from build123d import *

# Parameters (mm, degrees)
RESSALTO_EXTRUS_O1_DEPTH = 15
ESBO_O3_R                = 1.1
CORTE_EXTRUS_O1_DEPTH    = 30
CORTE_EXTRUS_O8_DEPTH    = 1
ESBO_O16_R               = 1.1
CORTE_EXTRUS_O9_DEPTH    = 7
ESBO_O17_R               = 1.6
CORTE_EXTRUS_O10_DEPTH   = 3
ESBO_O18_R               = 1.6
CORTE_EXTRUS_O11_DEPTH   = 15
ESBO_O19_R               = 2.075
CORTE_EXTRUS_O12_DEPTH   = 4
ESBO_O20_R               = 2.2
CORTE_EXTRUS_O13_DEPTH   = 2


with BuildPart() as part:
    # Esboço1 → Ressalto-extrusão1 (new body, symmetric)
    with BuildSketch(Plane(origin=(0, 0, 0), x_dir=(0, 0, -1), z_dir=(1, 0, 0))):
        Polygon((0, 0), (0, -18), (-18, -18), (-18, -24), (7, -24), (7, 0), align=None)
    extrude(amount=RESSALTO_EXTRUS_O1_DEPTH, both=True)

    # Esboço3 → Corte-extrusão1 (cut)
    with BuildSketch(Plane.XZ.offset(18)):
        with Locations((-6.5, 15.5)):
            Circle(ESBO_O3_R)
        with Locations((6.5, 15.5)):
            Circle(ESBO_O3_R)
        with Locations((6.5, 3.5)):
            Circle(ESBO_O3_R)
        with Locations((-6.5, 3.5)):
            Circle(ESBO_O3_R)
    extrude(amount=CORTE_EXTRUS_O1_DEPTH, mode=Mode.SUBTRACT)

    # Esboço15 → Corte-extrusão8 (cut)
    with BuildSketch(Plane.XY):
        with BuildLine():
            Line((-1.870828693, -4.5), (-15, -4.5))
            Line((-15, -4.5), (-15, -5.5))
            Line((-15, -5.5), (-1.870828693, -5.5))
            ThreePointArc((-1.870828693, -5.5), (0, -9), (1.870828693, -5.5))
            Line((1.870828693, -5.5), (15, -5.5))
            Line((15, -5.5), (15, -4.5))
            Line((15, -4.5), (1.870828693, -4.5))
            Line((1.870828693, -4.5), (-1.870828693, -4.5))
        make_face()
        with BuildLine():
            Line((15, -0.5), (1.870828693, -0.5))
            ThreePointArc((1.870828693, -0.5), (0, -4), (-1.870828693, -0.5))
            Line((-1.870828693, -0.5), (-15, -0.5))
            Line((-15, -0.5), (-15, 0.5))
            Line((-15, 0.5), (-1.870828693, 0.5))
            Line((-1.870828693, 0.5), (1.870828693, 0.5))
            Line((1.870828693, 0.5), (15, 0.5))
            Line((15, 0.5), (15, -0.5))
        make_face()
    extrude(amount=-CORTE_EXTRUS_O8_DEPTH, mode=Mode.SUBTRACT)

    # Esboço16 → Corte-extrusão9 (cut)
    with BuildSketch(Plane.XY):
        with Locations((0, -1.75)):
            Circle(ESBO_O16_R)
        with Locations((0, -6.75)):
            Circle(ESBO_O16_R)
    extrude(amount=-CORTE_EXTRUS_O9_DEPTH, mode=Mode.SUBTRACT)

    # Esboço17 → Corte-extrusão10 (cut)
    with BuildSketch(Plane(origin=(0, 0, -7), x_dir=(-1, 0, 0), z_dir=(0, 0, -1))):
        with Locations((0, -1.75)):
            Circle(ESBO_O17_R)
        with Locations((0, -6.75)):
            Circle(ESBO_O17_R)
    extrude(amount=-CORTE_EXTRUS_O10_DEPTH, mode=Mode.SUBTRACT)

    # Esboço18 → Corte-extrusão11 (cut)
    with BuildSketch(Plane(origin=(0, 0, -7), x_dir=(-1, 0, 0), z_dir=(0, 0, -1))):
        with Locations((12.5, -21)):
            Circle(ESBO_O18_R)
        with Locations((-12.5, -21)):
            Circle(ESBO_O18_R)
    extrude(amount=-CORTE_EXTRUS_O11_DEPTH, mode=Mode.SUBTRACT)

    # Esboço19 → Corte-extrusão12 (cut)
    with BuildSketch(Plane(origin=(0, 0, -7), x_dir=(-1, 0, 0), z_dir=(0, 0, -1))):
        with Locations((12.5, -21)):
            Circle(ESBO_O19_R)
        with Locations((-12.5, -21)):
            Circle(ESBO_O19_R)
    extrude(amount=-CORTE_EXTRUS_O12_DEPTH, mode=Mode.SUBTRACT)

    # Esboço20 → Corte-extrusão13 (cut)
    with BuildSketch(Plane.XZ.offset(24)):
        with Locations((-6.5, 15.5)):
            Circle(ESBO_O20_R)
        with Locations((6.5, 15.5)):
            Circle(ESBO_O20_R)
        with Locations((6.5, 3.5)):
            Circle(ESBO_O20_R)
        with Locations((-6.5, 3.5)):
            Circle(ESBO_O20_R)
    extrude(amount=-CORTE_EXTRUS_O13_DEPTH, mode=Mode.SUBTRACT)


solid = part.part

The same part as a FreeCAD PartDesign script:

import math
import FreeCAD as App
import Part
import Sketcher
Q = App.Units.Quantity


def add_polygon(sketch, points):
    """Adds a closed chain of lines whose ends are joined by coincident constraints."""
    first, n = sketch.GeometryCount, len(points)
    for a, b in zip(points, points[1:] + points[:1]):
        sketch.addGeometry(Part.LineSegment(App.Vector(*a, 0), App.Vector(*b, 0)), False)
    for i in range(n):
        sketch.addConstraint(Sketcher.Constraint("Coincident", first + i, 2, first + (i + 1) % n, 1))

doc = App.newDocument("Part")
body = doc.addObject("PartDesign::Body", "Body")

# Sketch on YZ plane
sketch1 = doc.addObject("Sketcher::SketchObject", "Sketch")
body.addObject(sketch1)
sketch1.AttachmentSupport = (doc.YZ_Plane, [""])
sketch1.MapMode = "FlatFace"
add_polygon(sketch1, [(0, 0), (-18, 0), (-18, 18), (-24, 18), (-24, -7), (0, -7)])  # lines 0-5
sketch1.addConstraint([
    Sketcher.Constraint("Horizontal", 0),
    Sketcher.Constraint("Vertical", 1),
    Sketcher.Constraint("Horizontal", 2),
    Sketcher.Constraint("Vertical", 3),
    Sketcher.Constraint("Horizontal", 4),
    Sketcher.Constraint("Vertical", 5),
    Sketcher.Constraint("Coincident", 5, 2, -1, 1),
    Sketcher.Constraint("Equal", 0, 1),
    Sketcher.Constraint("DistanceX", 0, 2, 0, 1, Q("18 mm")),
    Sketcher.Constraint("DistanceX", 2, 2, 2, 1, Q("6 mm")),
    Sketcher.Constraint("DistanceY", 3, 2, 3, 1, Q("25 mm")),
])
pad1 = doc.addObject("PartDesign::Pad", "Pad")
body.addObject(pad1)
pad1.Profile = sketch1
pad1.Length = 30
pad1.Midplane = True

# Sketch on XZ plane
sketch2 = doc.addObject("Sketcher::SketchObject", "Sketch001")
body.addObject(sketch2)
sketch2.AttachmentSupport = (doc.XZ_Plane, [""])
sketch2.MapMode = "FlatFace"
sketch2.AttachmentOffset = App.Placement(App.Vector(0, 0, 18), App.Rotation())
sketch2.addGeometry([
    Part.Circle(App.Vector(-6.5, 15.5, 0), App.Vector(0, 0, 1), 1.1),
    Part.Circle(App.Vector(6.5, 15.5, 0), App.Vector(0, 0, 1), 1.1),
    Part.Circle(App.Vector(6.5, 3.5, 0), App.Vector(0, 0, 1), 1.1),
    Part.Circle(App.Vector(-6.5, 3.5, 0), App.Vector(0, 0, 1), 1.1),
], False)
sketch2.addConstraint([
    Sketcher.Constraint("Equal", 0, 1),
    Sketcher.Constraint("Equal", 1, 2),
    Sketcher.Constraint("Equal", 2, 3),
    Sketcher.Constraint("Symmetric", 0, 3, 1, 3, -2),
    Sketcher.Constraint("Symmetric", 2, 3, 3, 3, -2),
    Sketcher.Constraint("Vertical", 1, 3, 2, 3),
    Sketcher.Constraint("Diameter", 0, Q("2.2 mm")),
    Sketcher.Constraint("DistanceX", 0, 3, 1, 3, Q("13 mm")),
    Sketcher.Constraint("DistanceY", 2, 3, 1, 3, Q("12 mm")),
    Sketcher.Constraint("DistanceY", -1, 1, 0, 3, Q("15.5 mm")),
])
pocket1 = doc.addObject("PartDesign::Pocket", "Pocket")
body.addObject(pocket1)
pocket1.Profile = sketch2
pocket1.Length = 30
pocket1.Reversed = True

# Sketch on XY plane
sketch3 = doc.addObject("Sketcher::SketchObject", "Sketch002")
body.addObject(sketch3)
sketch3.AttachmentSupport = (doc.XY_Plane, [""])
sketch3.MapMode = "FlatFace"
sketch3.addGeometry([
    Part.LineSegment(App.Vector(-15, -4.5, 0), App.Vector(-15, -5.5, 0)),  # 0
    Part.LineSegment(App.Vector(-15, -5.5, 0), App.Vector(-1.9, -5.5, 0)),  # 1
    Part.ArcOfCircle(Part.Circle(App.Vector(0, -6.8, 0), App.Vector(0, 0, 1), 2.2), math.radians(146), math.radians(394)),  # 2
    Part.LineSegment(App.Vector(1.9, -5.5, 0), App.Vector(15, -5.5, 0)),  # 3
    Part.LineSegment(App.Vector(15, -5.5, 0), App.Vector(15, -4.5, 0)),  # 4
    Part.LineSegment(App.Vector(15, -4.5, 0), App.Vector(-15, -4.5, 0)),  # 5
    Part.LineSegment(App.Vector(1.9, -0.5, 0), App.Vector(15, -0.5, 0)),  # 6
    Part.LineSegment(App.Vector(15, -0.5, 0), App.Vector(15, 0.5, 0)),  # 7
    Part.LineSegment(App.Vector(15, 0.5, 0), App.Vector(-15, 0.5, 0)),  # 8
    Part.LineSegment(App.Vector(-15, 0.5, 0), App.Vector(-15, -0.5, 0)),  # 9
    Part.LineSegment(App.Vector(-15, -0.5, 0), App.Vector(-1.9, -0.5, 0)),  # 10
    Part.ArcOfCircle(Part.Circle(App.Vector(0, -1.8, 0), App.Vector(0, 0, 1), 2.2), math.radians(146), math.radians(394)),  # 11
], False)
sketch3.addConstraint([
    Sketcher.Constraint("Coincident", 0, 2, 1, 1),
    Sketcher.Constraint("Coincident", 1, 2, 2, 1),
    Sketcher.Constraint("Coincident", 2, 2, 3, 1),
    Sketcher.Constraint("Coincident", 3, 2, 4, 1),
    Sketcher.Constraint("Coincident", 4, 2, 5, 1),
    Sketcher.Constraint("Coincident", 5, 2, 0, 1),
    Sketcher.Constraint("Coincident", 6, 2, 7, 1),
    Sketcher.Constraint("Coincident", 7, 2, 8, 1),
    Sketcher.Constraint("Coincident", 8, 2, 9, 1),
    Sketcher.Constraint("Coincident", 9, 2, 10, 1),
    Sketcher.Constraint("Coincident", 10, 2, 11, 1),
    Sketcher.Constraint("Coincident", 11, 2, 6, 1),
    Sketcher.Constraint("Vertical", 0),
    Sketcher.Constraint("Horizontal", 1),
    Sketcher.Constraint("Horizontal", 3),
    Sketcher.Constraint("Vertical", 4),
    Sketcher.Constraint("Horizontal", 5),
    Sketcher.Constraint("Horizontal", 6),
    Sketcher.Constraint("Vertical", 7),
    Sketcher.Constraint("Horizontal", 8),
    Sketcher.Constraint("Vertical", 9),
    Sketcher.Constraint("Horizontal", 10),
    Sketcher.Constraint("Equal", 2, 11),
    Sketcher.Constraint("Symmetric", 6, 2, 8, 2, -1, 1),
    Sketcher.Constraint("Symmetric", 1, 2, 2, 2, -2),
    Sketcher.Constraint("Symmetric", 10, 2, 11, 2, -2),
    Sketcher.Constraint("Vertical", 4, 2, 6, 2),
    Sketcher.Constraint("Vertical", 5, 2, 8, 2),
    Sketcher.Constraint("Vertical", 1, 2, 10, 2),
    Sketcher.Constraint("Equal", 4, 7),
    Sketcher.Constraint("DistanceX", 5, 2, 5, 1, Q("30 mm")),
    Sketcher.Constraint("DistanceY", 0, 2, 0, 1, Q("1 mm")),
    Sketcher.Constraint("Radius", 2, Q("2.25 mm")),
    Sketcher.Constraint("DistanceY", 2, 3, 11, 3, Q("5 mm")),
    Sketcher.Constraint("DistanceY", 2, 3, -1, 1, Q("6.75 mm")),
])
pocket2 = doc.addObject("PartDesign::Pocket", "Pocket001")
body.addObject(pocket2)
pocket2.Profile = sketch3
pocket2.Length = 1

# Sketch on XY plane
sketch4 = doc.addObject("Sketcher::SketchObject", "Sketch003")
body.addObject(sketch4)
sketch4.AttachmentSupport = (doc.XY_Plane, [""])
sketch4.MapMode = "FlatFace"
sketch4.addGeometry([
    Part.Circle(App.Vector(0, -1.8, 0), App.Vector(0, 0, 1), 1.1),
    Part.Circle(App.Vector(0, -6.8, 0), App.Vector(0, 0, 1), 1.1),
], False)
sketch4.addConstraint([
    Sketcher.Constraint("Equal", 0, 1),
    Sketcher.Constraint("PointOnObject", 0, 3, -2),
    Sketcher.Constraint("PointOnObject", 1, 3, -2),
    Sketcher.Constraint("Diameter", 0, Q("2.2 mm")),
    Sketcher.Constraint("DistanceY", 1, 3, 0, 3, Q("5 mm")),
    Sketcher.Constraint("DistanceY", 0, 3, -1, 1, Q("1.75 mm")),
])
pocket3 = doc.addObject("PartDesign::Pocket", "Pocket002")
body.addObject(pocket3)
pocket3.Profile = sketch4
pocket3.Length = 7

# Sketch on XY plane
sketch5 = doc.addObject("Sketcher::SketchObject", "Sketch004")
body.addObject(sketch5)
sketch5.AttachmentSupport = (doc.XY_Plane, [""])
sketch5.MapMode = "FlatFace"
sketch5.AttachmentOffset = App.Placement(App.Vector(0, 0, -7), App.Rotation())
sketch5.addGeometry([
    Part.Circle(App.Vector(0, -1.8, 0), App.Vector(0, 0, 1), 1.6),
    Part.Circle(App.Vector(0, -6.8, 0), App.Vector(0, 0, 1), 1.6),
], False)
sketch5.addConstraint([
    Sketcher.Constraint("Equal", 0, 1),
    Sketcher.Constraint("PointOnObject", 0, 3, -2),
    Sketcher.Constraint("PointOnObject", 1, 3, -2),
    Sketcher.Constraint("Diameter", 0, Q("3.2 mm")),
    Sketcher.Constraint("DistanceY", 1, 3, 0, 3, Q("5 mm")),
    Sketcher.Constraint("DistanceY", 0, 3, -1, 1, Q("1.75 mm")),
])
pocket4 = doc.addObject("PartDesign::Pocket", "Pocket003")
body.addObject(pocket4)
pocket4.Profile = sketch5
pocket4.Length = 3
pocket4.Reversed = True

# Sketch on XY plane
sketch6 = doc.addObject("Sketcher::SketchObject", "Sketch005")
body.addObject(sketch6)
sketch6.AttachmentSupport = (doc.XY_Plane, [""])
sketch6.MapMode = "FlatFace"
sketch6.AttachmentOffset = App.Placement(App.Vector(0, 0, -7), App.Rotation())
sketch6.addGeometry([
    Part.Circle(App.Vector(-12.5, -21, 0), App.Vector(0, 0, 1), 1.6),
    Part.Circle(App.Vector(12.5, -21, 0), App.Vector(0, 0, 1), 1.6),
], False)
sketch6.addConstraint([
    Sketcher.Constraint("Equal", 0, 1),
    Sketcher.Constraint("Symmetric", 0, 3, 1, 3, -2),
    Sketcher.Constraint("Diameter", 0, Q("3.2 mm")),
    Sketcher.Constraint("DistanceY", 0, 3, -1, 1, Q("21 mm")),
    Sketcher.Constraint("DistanceX", 0, 3, 1, 3, Q("25 mm")),
])
pocket5 = doc.addObject("PartDesign::Pocket", "Pocket004")
body.addObject(pocket5)
pocket5.Profile = sketch6
pocket5.Length = 15
pocket5.Reversed = True

# Sketch on XY plane
sketch7 = doc.addObject("Sketcher::SketchObject", "Sketch006")
body.addObject(sketch7)
sketch7.AttachmentSupport = (doc.XY_Plane, [""])
sketch7.MapMode = "FlatFace"
sketch7.AttachmentOffset = App.Placement(App.Vector(0, 0, -7), App.Rotation())
sketch7.addGeometry([
    Part.Circle(App.Vector(-12.5, -21, 0), App.Vector(0, 0, 1), 2.1),
    Part.Circle(App.Vector(12.5, -21, 0), App.Vector(0, 0, 1), 2.1),
], False)
sketch7.addConstraint([
    Sketcher.Constraint("Equal", 0, 1),
    Sketcher.Constraint("Symmetric", 0, 3, 1, 3, -2),
    Sketcher.Constraint("Diameter", 0, Q("4.15 mm")),
    Sketcher.Constraint("DistanceY", 0, 3, -1, 1, Q("21 mm")),
    Sketcher.Constraint("DistanceX", 0, 3, 1, 3, Q("25 mm")),
])
pocket6 = doc.addObject("PartDesign::Pocket", "Pocket005")
body.addObject(pocket6)
pocket6.Profile = sketch7
pocket6.Length = 4
pocket6.Reversed = True

# Sketch on XZ plane
sketch8 = doc.addObject("Sketcher::SketchObject", "Sketch007")
body.addObject(sketch8)
sketch8.AttachmentSupport = (doc.XZ_Plane, [""])
sketch8.MapMode = "FlatFace"
sketch8.AttachmentOffset = App.Placement(App.Vector(0, 0, 24), App.Rotation())
sketch8.addGeometry([
    Part.Circle(App.Vector(-6.5, 15.5, 0), App.Vector(0, 0, 1), 2.2),
    Part.Circle(App.Vector(6.5, 15.5, 0), App.Vector(0, 0, 1), 2.2),
    Part.Circle(App.Vector(6.5, 3.5, 0), App.Vector(0, 0, 1), 2.2),
    Part.Circle(App.Vector(-6.5, 3.5, 0), App.Vector(0, 0, 1), 2.2),
], False)
sketch8.addConstraint([
    Sketcher.Constraint("Equal", 0, 1),
    Sketcher.Constraint("Equal", 1, 2),
    Sketcher.Constraint("Equal", 2, 3),
    Sketcher.Constraint("Symmetric", 0, 3, 1, 3, -2),
    Sketcher.Constraint("Symmetric", 2, 3, 3, 3, -2),
    Sketcher.Constraint("Vertical", 1, 3, 2, 3),
    Sketcher.Constraint("Diameter", 0, Q("4.4 mm")),
    Sketcher.Constraint("DistanceX", 0, 3, 1, 3, Q("13 mm")),
    Sketcher.Constraint("DistanceY", 2, 3, 1, 3, Q("12 mm")),
    Sketcher.Constraint("DistanceY", -1, 1, 0, 3, Q("15.5 mm")),
])
pocket7 = doc.addObject("PartDesign::Pocket", "Pocket006")
body.addObject(pocket7)
pocket7.Profile = sketch8
pocket7.Length = 2

doc.recompute()
